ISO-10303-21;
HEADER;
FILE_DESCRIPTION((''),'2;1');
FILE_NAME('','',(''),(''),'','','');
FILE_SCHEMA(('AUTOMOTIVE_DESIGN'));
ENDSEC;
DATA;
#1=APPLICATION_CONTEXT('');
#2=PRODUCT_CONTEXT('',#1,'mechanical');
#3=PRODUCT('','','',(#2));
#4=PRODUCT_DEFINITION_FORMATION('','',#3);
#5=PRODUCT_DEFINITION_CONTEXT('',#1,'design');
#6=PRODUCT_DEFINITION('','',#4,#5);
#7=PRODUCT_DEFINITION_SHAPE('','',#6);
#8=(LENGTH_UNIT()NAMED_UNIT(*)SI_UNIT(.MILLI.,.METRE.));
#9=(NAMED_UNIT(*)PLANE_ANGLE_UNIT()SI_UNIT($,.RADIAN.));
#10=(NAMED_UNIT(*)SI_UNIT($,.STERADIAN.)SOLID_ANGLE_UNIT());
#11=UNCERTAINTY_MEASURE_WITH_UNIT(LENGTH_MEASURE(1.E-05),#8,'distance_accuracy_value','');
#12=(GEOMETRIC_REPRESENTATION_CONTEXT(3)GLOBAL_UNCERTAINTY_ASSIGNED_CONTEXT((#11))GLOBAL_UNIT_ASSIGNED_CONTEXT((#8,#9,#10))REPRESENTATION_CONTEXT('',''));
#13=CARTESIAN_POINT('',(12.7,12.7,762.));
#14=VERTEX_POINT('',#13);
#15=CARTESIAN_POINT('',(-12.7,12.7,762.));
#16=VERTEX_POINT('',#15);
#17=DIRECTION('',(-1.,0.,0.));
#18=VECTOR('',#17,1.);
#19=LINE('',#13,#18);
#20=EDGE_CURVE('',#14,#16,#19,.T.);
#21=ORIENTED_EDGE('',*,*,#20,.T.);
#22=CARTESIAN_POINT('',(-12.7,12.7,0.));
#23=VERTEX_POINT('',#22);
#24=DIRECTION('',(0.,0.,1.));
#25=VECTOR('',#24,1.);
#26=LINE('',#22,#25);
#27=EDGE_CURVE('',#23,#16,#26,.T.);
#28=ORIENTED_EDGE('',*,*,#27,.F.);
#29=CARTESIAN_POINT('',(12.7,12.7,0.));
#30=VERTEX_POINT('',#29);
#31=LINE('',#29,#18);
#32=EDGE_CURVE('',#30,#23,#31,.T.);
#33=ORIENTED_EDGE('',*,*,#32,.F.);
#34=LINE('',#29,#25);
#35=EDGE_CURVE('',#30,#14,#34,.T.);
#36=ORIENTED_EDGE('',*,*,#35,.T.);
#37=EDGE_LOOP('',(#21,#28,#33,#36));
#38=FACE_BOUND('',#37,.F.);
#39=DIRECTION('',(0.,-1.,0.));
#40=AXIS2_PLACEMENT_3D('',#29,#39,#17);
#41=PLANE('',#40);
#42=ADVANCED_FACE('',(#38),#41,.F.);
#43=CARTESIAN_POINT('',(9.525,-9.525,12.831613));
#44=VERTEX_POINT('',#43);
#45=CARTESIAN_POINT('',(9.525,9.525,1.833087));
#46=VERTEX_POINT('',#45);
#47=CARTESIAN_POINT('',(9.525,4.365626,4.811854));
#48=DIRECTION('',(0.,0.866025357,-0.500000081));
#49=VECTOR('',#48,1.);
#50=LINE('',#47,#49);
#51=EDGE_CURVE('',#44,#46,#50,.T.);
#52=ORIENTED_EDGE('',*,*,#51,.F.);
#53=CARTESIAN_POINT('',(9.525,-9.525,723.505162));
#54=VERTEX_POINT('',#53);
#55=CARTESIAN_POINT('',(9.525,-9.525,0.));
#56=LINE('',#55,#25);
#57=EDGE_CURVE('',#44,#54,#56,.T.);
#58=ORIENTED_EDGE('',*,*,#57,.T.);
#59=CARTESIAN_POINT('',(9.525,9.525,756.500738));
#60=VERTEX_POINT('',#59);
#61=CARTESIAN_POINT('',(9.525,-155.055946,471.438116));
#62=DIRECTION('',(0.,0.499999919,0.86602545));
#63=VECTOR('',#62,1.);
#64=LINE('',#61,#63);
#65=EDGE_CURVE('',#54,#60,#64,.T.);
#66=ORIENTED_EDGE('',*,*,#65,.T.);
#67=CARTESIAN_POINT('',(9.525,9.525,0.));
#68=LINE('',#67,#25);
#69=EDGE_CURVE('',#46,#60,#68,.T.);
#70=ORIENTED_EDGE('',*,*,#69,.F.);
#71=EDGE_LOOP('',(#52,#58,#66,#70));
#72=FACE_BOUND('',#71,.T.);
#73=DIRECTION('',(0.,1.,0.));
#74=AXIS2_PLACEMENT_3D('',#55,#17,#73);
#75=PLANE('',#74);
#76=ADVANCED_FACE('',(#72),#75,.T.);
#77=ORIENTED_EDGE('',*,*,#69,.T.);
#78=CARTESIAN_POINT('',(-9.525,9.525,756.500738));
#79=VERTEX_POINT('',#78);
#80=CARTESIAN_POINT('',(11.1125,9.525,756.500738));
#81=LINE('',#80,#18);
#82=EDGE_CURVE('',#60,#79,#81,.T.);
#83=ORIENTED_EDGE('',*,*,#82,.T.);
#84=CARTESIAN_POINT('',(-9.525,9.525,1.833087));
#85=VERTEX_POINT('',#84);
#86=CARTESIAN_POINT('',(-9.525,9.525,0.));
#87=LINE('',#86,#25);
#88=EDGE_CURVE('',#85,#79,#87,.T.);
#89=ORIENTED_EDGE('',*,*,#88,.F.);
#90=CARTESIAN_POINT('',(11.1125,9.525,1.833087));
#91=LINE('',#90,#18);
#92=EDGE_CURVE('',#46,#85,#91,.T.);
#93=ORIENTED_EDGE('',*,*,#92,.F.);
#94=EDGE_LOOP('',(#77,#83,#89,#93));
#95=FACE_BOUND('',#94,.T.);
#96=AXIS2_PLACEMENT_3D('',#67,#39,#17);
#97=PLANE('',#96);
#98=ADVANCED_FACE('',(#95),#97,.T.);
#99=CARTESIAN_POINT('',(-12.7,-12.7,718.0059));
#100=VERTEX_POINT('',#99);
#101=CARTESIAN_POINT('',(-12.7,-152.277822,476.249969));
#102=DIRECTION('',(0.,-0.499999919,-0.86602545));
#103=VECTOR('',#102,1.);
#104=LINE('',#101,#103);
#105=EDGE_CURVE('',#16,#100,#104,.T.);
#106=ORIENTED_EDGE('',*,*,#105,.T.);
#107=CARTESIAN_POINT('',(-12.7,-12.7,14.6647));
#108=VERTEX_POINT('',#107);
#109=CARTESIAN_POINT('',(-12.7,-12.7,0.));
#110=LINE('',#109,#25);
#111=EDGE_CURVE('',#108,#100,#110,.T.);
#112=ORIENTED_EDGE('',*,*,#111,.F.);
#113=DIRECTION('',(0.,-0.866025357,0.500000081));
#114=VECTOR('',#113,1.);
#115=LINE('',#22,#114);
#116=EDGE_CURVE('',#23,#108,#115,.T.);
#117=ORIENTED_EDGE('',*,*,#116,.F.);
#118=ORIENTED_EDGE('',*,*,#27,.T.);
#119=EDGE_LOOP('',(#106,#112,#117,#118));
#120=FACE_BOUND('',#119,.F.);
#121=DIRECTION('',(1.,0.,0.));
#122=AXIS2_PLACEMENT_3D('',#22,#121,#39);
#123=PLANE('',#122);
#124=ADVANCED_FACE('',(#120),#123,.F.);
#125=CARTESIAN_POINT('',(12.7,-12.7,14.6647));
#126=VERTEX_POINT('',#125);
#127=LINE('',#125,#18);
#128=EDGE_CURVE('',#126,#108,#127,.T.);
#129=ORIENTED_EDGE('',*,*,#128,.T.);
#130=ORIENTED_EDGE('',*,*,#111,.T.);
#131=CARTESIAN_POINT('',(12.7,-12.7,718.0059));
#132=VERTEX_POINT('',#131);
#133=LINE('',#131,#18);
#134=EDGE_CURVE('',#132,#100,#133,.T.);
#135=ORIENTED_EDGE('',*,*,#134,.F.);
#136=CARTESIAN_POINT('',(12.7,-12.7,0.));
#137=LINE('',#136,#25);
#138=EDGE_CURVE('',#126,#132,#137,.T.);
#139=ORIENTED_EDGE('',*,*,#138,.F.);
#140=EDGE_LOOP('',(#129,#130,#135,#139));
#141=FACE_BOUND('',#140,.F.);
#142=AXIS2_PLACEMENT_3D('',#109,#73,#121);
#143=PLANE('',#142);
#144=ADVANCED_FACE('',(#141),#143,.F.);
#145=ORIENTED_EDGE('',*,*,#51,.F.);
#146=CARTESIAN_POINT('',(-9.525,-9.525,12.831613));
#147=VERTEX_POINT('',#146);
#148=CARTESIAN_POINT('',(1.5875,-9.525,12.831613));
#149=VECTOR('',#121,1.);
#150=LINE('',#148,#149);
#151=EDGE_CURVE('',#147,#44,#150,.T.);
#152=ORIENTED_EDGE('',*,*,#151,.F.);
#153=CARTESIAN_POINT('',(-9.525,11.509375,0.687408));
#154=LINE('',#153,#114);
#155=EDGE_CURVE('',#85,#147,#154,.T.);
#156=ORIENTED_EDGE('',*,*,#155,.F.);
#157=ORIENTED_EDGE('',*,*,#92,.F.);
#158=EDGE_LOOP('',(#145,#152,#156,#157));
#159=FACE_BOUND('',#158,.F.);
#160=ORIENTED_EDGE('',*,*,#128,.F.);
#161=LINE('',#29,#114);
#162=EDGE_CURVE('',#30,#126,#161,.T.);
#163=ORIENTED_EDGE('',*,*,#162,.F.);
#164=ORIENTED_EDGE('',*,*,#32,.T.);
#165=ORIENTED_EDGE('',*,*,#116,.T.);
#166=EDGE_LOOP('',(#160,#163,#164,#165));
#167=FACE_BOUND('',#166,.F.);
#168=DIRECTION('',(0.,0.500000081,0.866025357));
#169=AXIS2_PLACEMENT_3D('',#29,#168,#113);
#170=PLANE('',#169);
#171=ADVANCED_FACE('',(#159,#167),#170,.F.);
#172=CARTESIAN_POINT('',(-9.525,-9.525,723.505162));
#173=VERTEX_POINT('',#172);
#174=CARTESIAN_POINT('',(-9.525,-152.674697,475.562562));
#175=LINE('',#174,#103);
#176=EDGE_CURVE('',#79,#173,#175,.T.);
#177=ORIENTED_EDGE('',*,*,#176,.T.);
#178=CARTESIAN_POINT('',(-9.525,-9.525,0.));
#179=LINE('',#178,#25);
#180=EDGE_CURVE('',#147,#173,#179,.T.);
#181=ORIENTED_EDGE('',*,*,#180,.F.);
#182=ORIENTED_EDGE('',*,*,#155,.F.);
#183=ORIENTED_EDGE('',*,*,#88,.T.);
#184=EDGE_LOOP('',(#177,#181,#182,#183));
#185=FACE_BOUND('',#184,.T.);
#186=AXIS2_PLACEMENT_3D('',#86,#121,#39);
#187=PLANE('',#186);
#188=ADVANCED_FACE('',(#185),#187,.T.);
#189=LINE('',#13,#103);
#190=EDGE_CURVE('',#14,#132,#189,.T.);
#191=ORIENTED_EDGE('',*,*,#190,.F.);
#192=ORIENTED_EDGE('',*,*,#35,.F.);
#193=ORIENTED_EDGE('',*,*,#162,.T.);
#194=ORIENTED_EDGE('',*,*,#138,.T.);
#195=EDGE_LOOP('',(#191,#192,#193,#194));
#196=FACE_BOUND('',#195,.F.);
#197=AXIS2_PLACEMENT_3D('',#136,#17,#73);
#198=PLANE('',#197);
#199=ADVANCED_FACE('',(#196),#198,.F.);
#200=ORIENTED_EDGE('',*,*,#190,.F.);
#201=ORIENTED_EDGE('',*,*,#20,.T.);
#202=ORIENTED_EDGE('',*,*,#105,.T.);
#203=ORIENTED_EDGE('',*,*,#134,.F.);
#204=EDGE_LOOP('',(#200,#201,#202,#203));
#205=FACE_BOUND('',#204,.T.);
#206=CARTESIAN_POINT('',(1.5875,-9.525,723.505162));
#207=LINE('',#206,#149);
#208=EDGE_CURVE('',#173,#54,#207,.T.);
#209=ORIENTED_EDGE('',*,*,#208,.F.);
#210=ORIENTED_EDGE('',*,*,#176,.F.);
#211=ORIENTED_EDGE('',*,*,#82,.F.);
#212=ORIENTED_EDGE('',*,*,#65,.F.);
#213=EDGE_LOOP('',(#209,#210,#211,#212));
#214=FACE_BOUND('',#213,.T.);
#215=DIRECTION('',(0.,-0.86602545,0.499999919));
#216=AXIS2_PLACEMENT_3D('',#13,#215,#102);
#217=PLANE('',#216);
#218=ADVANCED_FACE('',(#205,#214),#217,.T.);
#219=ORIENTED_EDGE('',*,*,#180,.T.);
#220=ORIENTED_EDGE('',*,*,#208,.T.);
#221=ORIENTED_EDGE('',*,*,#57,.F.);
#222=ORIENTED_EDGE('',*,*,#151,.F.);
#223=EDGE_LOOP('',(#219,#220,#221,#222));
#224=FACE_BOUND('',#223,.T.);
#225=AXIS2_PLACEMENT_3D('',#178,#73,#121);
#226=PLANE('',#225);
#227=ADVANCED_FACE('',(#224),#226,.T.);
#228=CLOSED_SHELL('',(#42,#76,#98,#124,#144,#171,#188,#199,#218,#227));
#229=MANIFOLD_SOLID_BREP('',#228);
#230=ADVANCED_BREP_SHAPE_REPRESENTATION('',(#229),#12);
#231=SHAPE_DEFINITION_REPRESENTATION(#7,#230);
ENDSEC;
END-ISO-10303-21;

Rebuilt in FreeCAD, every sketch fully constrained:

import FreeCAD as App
import Part
import Sketcher

V = App.Vector
Q = App.Units.Quantity

doc = App.newDocument("Part")
body = doc.addObject("PartDesign::Body", "Body")

# Sketch on XY plane
sketch1 = body.newObject("Sketcher::SketchObject", "Sketch")
sketch1.AttachmentSupport = (doc.getObject("XY_Plane"), [""])
sketch1.MapMode = "FlatFace"
sketch1.addGeometry(Part.LineSegment(V(-13, 13, 0), V(-13, -13, 0)), False)
sketch1.addGeometry(Part.LineSegment(V(-13, -13, 0), V(13, -13, 0)), False)
sketch1.addGeometry(Part.LineSegment(V(13, -13, 0), V(13, 13, 0)), False)
sketch1.addGeometry(Part.LineSegment(V(13, 13, 0), V(-13, 13, 0)), False)
sketch1.addGeometry(Part.LineSegment(V(10, -10, 0), V(-10, -10, 0)), False)
sketch1.addGeometry(Part.LineSegment(V(-10, -10, 0), V(-10, 10, 0)), False)
sketch1.addGeometry(Part.LineSegment(V(-10, 10, 0), V(10, 10, 0)), False)
sketch1.addGeometry(Part.LineSegment(V(10, 10, 0), V(10, -10, 0)), False)
sketch1.addConstraint(Sketcher.Constraint("Coincident", 0, 2, 1, 1))
sketch1.addConstraint(Sketcher.Constraint("Coincident", 1, 2, 2, 1))
sketch1.addConstraint(Sketcher.Constraint("Coincident", 2, 2, 3, 1))
sketch1.addConstraint(Sketcher.Constraint("Coincident", 3, 2, 0, 1))
sketch1.addConstraint(Sketcher.Constraint("Coincident", 4, 2, 5, 1))
sketch1.addConstraint(Sketcher.Constraint("Coincident", 5, 2, 6, 1))
sketch1.addConstraint(Sketcher.Constraint("Coincident", 6, 2, 7, 1))
sketch1.addConstraint(Sketcher.Constraint("Coincident", 7, 2, 4, 1))
sketch1.addConstraint(Sketcher.Constraint("Vertical", 0))
sketch1.addConstraint(Sketcher.Constraint("Horizontal", 1))
sketch1.addConstraint(Sketcher.Constraint("Vertical", 2))
sketch1.addConstraint(Sketcher.Constraint("Horizontal", 3))
sketch1.addConstraint(Sketcher.Constraint("Horizontal", 4))
sketch1.addConstraint(Sketcher.Constraint("Vertical", 5))
sketch1.addConstraint(Sketcher.Constraint("Horizontal", 6))
sketch1.addConstraint(Sketcher.Constraint("Vertical", 7))
sketch1.addConstraint(Sketcher.Constraint("Symmetric", 0, 2, 2, 2, -1, 1))
sketch1.addConstraint(Sketcher.Constraint("Symmetric", 4, 2, 6, 2, -1, 1))
sketch1.addConstraint(Sketcher.Constraint("Equal", 3, 0))
sketch1.addConstraint(Sketcher.Constraint("Equal", 6, 5))
sketch1.addConstraint(Sketcher.Constraint("DistanceX", 1, 1, 1, 2, Q("1 in")))
sketch1.addConstraint(Sketcher.Constraint("DistanceX", 0, 2, 4, 2, Q("0.125 in")))
pad1 = body.newObject("PartDesign::Pad", "Pad")
pad1.Profile = sketch1
pad1.Length = Q("30 in")

# Sketch on YZ plane
sketch2 = body.newObject("Sketcher::SketchObject", "Sketch001")
sketch2.AttachmentSupport = (doc.getObject("YZ_Plane"), [""])
sketch2.MapMode = "FlatFace"
sketch2.AttachmentOffset = App.Placement(V(0, 0, 0.5 * 25.4), App.Rotation())
sketch2.addGeometry(Part.LineSegment(V(-13, 15, 0), V(-13, 0, 0)), False)
sketch2.addGeometry(Part.LineSegment(V(-13, 0, 0), V(13, 0, 0)), False)
sketch2.addGeometry(Part.LineSegment(V(13, 0, 0), V(-13, 15, 0)), False)
sketch2.addConstraint(Sketcher.Constraint("Coincident", 0, 2, 1, 1))
sketch2.addConstraint(Sketcher.Constraint("Coincident", 1, 2, 2, 1))
sketch2.addConstraint(Sketcher.Constraint("Coincident", 2, 2, 0, 1))
sketch2.addConstraint(Sketcher.Constraint("Vertical", 0))
sketch2.addConstraint(Sketcher.Constraint("Horizontal", 1))
sketch2.addConstraint(Sketcher.Constraint("Symmetric", 0, 2, 1, 2, -1, 1))
sketch2.addConstraint(Sketcher.Constraint("DistanceX", 1, 1, 1, 2, Q("1 in")))
sketch2.addConstraint(Sketcher.Constraint("Angle", 2, Q("150 deg")))
pocket1 = body.newObject("PartDesign::Pocket", "Pocket")
pocket1.Profile = sketch2
pocket1.Type = "ThroughAll"

# Sketch on YZ plane
sketch3 = body.newObject("Sketcher::SketchObject", "Sketch002")
sketch3.AttachmentSupport = (doc.getObject("YZ_Plane"), [""])
sketch3.MapMode = "FlatFace"
sketch3.AttachmentOffset = App.Placement(V(0, 0, 0.5 * 25.4), App.Rotation())
sketch3.addGeometry(Part.LineSegment(V(-13, 718, 0), V(13, 762, 0)), False)
sketch3.addGeometry(Part.LineSegment(V(13, 762, 0), V(-13, 762, 0)), False)
sketch3.addGeometry(Part.LineSegment(V(-13, 762, 0), V(-13, 718, 0)), False)
sketch3.addConstraint(Sketcher.Constraint("Coincident", 0, 2, 1, 1))
sketch3.addConstraint(Sketcher.Constraint("Coincident", 1, 2, 2, 1))
sketch3.addConstraint(Sketcher.Constraint("Coincident", 2, 2, 0, 1))
sketch3.addConstraint(Sketcher.Constraint("Horizontal", 1))
sketch3.addConstraint(Sketcher.Constraint("Vertical", 2))
sketch3.addConstraint(Sketcher.Constraint("DistanceX", 1, 2, 1, 1, Q("1 in")))
sketch3.addConstraint(Sketcher.Constraint("Distance", 0, Q("2 in")))
sketch3.addConstraint(Sketcher.Constraint("DistanceY", -1, 1, 0, 2, Q("30 in")))
sketch3.addConstraint(Sketcher.Constraint("DistanceX", -1, 1, 0, 2, Q("0.5 in")))
pocket2 = body.newObject("PartDesign::Pocket", "Pocket001")
pocket2.Profile = sketch3
pocket2.Type = "ThroughAll"

doc.recompute()
